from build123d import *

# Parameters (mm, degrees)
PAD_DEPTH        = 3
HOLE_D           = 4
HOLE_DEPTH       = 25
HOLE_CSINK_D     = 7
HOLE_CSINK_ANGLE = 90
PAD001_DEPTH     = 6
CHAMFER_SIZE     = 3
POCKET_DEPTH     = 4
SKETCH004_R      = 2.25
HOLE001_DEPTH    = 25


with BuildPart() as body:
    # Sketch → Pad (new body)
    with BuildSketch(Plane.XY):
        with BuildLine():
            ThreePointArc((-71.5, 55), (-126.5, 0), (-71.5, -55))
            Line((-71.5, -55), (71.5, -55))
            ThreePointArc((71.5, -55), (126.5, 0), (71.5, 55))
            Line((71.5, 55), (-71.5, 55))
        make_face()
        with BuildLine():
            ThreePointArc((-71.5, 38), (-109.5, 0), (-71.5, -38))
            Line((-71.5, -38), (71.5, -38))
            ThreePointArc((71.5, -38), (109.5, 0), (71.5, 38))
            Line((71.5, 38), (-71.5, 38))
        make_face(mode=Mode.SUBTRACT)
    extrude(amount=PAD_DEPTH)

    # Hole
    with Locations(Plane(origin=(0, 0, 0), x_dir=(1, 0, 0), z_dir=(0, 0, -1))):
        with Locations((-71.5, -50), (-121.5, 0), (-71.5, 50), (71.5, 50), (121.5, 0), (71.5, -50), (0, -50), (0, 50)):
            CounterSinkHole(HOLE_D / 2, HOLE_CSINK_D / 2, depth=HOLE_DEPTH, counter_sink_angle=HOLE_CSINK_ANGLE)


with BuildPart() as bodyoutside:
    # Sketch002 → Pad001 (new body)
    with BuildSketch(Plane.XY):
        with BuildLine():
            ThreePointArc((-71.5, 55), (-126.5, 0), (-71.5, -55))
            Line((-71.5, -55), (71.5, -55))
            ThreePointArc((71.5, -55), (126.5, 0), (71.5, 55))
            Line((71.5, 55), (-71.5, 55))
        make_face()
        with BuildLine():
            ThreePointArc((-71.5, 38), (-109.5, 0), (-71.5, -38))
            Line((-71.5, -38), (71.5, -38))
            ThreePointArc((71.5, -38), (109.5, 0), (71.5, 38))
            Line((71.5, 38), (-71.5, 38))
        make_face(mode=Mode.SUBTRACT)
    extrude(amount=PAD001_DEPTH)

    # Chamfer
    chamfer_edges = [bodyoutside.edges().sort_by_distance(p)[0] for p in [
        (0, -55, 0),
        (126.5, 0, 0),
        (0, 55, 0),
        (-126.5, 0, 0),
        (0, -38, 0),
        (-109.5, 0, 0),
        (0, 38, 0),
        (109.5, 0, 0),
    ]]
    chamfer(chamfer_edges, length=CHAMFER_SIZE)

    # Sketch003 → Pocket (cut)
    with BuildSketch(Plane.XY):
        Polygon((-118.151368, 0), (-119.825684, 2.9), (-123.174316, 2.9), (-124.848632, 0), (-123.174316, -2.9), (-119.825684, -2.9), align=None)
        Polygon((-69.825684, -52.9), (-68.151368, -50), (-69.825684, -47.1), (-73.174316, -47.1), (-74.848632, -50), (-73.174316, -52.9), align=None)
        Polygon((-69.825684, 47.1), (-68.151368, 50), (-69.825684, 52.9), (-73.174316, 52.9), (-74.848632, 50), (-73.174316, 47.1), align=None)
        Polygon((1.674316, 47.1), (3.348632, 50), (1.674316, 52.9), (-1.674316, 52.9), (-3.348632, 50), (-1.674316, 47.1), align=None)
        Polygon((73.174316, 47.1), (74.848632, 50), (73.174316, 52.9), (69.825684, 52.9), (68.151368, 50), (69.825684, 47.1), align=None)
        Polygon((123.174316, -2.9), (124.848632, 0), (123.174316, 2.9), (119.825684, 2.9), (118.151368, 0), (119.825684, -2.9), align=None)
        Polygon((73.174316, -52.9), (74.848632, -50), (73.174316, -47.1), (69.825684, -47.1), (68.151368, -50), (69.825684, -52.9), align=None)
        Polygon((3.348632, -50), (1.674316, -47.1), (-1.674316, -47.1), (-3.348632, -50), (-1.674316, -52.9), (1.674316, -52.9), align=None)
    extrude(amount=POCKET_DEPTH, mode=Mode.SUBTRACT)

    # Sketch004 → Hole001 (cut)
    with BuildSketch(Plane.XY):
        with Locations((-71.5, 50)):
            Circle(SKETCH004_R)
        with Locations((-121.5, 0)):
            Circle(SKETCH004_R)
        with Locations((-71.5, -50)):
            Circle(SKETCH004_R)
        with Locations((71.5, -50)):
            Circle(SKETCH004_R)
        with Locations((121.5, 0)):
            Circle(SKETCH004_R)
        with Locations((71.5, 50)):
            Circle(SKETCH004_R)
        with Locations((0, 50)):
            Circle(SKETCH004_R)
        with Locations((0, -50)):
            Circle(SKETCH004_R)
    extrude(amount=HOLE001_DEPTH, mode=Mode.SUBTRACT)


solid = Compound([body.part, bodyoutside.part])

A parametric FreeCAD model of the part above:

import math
import FreeCAD as App
import Part
import Sketcher
Q = App.Units.Quantity


def edges_at(feature, points):
    """Names of the edges that pass closest to the given points."""
    edges = feature.Shape.Edges
    near = lambda p: min(range(len(edges)), key=lambda i: edges[i].distToShape(Part.Vertex(*p))[0])
    return sorted({f"Edge{near(p) + 1}" for p in points})


def add_polygon(sketch, points):
    """Adds a closed chain of lines whose ends are joined by coincident constraints."""
    first, n = sketch.GeometryCount, len(points)
    for a, b in zip(points, points[1:] + points[:1]):
        sketch.addGeometry(Part.LineSegment(App.Vector(*a, 0), App.Vector(*b, 0)), False)
    for i in range(n):
        sketch.addConstraint(Sketcher.Constraint("Coincident", first + i, 2, first + (i + 1) % n, 1))

doc = App.newDocument("Part")
body = doc.addObject("PartDesign::Body", "Body")

# Sketch on XY plane
sketch1 = doc.addObject("Sketcher::SketchObject", "Sketch")
body.addObject(sketch1)
sketch1.AttachmentSupport = (doc.XY_Plane, [""])
sketch1.MapMode = "FlatFace"
sketch1.addGeometry(Part.ArcOfCircle(Part.Circle(App.Vector(-72, 0, 0), App.Vector(0, 0, 1), 55), math.radians(90), math.radians(270)), False)
sketch1.addGeometry(Part.LineSegment(App.Vector(-72, -55, 0), App.Vector(72, -55, 0)), False)
sketch1.addGeometry(Part.ArcOfCircle(Part.Circle(App.Vector(72, 0, 0), App.Vector(0, 0, 1), 55), math.radians(-90), math.radians(90)), False)
sketch1.addGeometry(Part.LineSegment(App.Vector(72, 55, 0), App.Vector(-72, 55, 0)), False)
sketch1.addGeometry(Part.ArcOfCircle(Part.Circle(App.Vector(-72, 0, 0), App.Vector(0, 0, 1), 38), math.radians(90), math.radians(270)), False)
sketch1.addGeometry(Part.LineSegment(App.Vector(-72, 38, 0), App.Vector(72, 38, 0)), False)
sketch1.addGeometry(Part.ArcOfCircle(Part.Circle(App.Vector(72, 0, 0), App.Vector(0, 0, 1), 38), math.radians(-90), math.radians(90)), False)
sketch1.addGeometry(Part.LineSegment(App.Vector(72, -38, 0), App.Vector(-72, -38, 0)), False)
sketch1.addConstraint(Sketcher.Constraint("Tangent", 0, 2, 1, 1))
sketch1.addConstraint(Sketcher.Constraint("Tangent", 1, 2, 2, 1))
sketch1.addConstraint(Sketcher.Constraint("Tangent", 2, 2, 3, 1))
sketch1.addConstraint(Sketcher.Constraint("Tangent", 3, 2, 0, 1))
sketch1.addConstraint(Sketcher.Constraint("Tangent", 4, 1, 5, 1))
sketch1.addConstraint(Sketcher.Constraint("Tangent", 5, 2, 6, 2))
sketch1.addConstraint(Sketcher.Constraint("Tangent", 6, 1, 7, 1))
sketch1.addConstraint(Sketcher.Constraint("Tangent", 7, 2, 4, 2))
sketch1.addConstraint(Sketcher.Constraint("Horizontal", 1))
sketch1.addConstraint(Sketcher.Constraint("Horizontal", 3))
sketch1.addConstraint(Sketcher.Constraint("Horizontal", 5))
sketch1.addConstraint(Sketcher.Constraint("Horizontal", 7))
sketch1.addConstraint(Sketcher.Constraint("Coincident", 4, 3, 0, 3))
sketch1.addConstraint(Sketcher.Constraint("Symmetric", 0, 3, 2, 3, -1, 1))
sketch1.addConstraint(Sketcher.Constraint("Vertical", 6, 3, 1, 2))
sketch1.addConstraint(Sketcher.Constraint("Radius", 0, 55.0))
sketch1.addConstraint(Sketcher.Constraint("Radius", 4, 38.0))
sketch1.addConstraint(Sketcher.Constraint("DistanceX", 1, 1, 1, 2, 143.0))
pad1 = doc.addObject("PartDesign::Pad", "Pad")
body.addObject(pad1)
pad1.Profile = sketch1
pad1.Length = 3

# Sketch on XY plane
sketch2 = doc.addObject("Sketcher::SketchObject", "Sketch001")
body.addObject(sketch2)
sketch2.AttachmentSupport = (doc.XY_Plane, [""])
sketch2.MapMode = "FlatFace"
sketch2.addGeometry(Part.Circle(App.Vector(-71.5, 50, 0), App.Vector(0, 0, 1), 2), False)
sketch2.addGeometry(Part.Circle(App.Vector(-121.5, 0, 0), App.Vector(0, 0, 1), 2), False)
sketch2.addGeometry(Part.Circle(App.Vector(-71.5, -50, 0), App.Vector(0, 0, 1), 2), False)
sketch2.addGeometry(Part.Circle(App.Vector(71.5, -50, 0), App.Vector(0, 0, 1), 2), False)
sketch2.addGeometry(Part.Circle(App.Vector(121.5, 0, 0), App.Vector(0, 0, 1), 2), False)
sketch2.addGeometry(Part.Circle(App.Vector(71.5, 50, 0), App.Vector(0, 0, 1), 2), False)
sketch2.addGeometry(Part.Circle(App.Vector(0, 50, 0), App.Vector(0, 0, 1), 2), False)
sketch2.addGeometry(Part.Circle(App.Vector(0, -50, 0), App.Vector(0, 0, 1), 2), False)
sketch2.addConstraint(Sketcher.Constraint("Equal", 0, 1))
sketch2.addConstraint(Sketcher.Constraint("Equal", 1, 2))
sketch2.addConstraint(Sketcher.Constraint("Equal", 2, 3))
sketch2.addConstraint(Sketcher.Constraint("Equal", 3, 4))
sketch2.addConstraint(Sketcher.Constraint("Equal", 4, 5))
sketch2.addConstraint(Sketcher.Constraint("Equal", 5, 6))
sketch2.addConstraint(Sketcher.Constraint("Equal", 6, 7))
sketch2.addConstraint(Sketcher.Constraint("Symmetric", 0, 3, 3, 3, -1, 1))
sketch2.addConstraint(Sketcher.Constraint("Symmetric", 1, 3, 4, 3, -1, 1))
sketch2.addConstraint(Sketcher.Constraint("Symmetric", 2, 3, 5, 3, -1, 1))
sketch2.addConstraint(Sketcher.Constraint("Symmetric", 6, 3, 7, 3, -1, 1))
sketch2.addConstraint(Sketcher.Constraint("Symmetric", 2, 3, 3, 3, -2))
sketch2.addConstraint(Sketcher.Constraint("PointOnObject", 1, 3, -1))
sketch2.addConstraint(Sketcher.Constraint("PointOnObject", 6, 3, -2))
sketch2.addConstraint(Sketcher.Constraint("Horizontal", 5, 3, 6, 3))
sketch2.addConstraint(Sketcher.Constraint("Diameter", 0, 4.0))
sketch2.addConstraint(Sketcher.Constraint("DistanceY", -1, 1, 0, 3, 50.0))
sketch2.addConstraint(Sketcher.Constraint("DistanceX", 1, 3, 0, 3, 50.0))
sketch2.addConstraint(Sketcher.Constraint("DistanceX", 2, 3, 3, 3, 143.0))
doc.recompute()
hole = doc.addObject("PartDesign::Hole", "Hole")
body.addObject(hole)
hole.Profile = sketch2
hole.ThreadType = "None"
hole.Diameter = 4
hole.DepthType = "Dimension"
hole.Depth = 25
hole.DrillPoint = "Flat"
hole.HoleCutType = "Countersink"
hole.HoleCutDiameter = 7
hole.HoleCutCountersinkAngle = 90
hole.Reversed = True
body2 = doc.addObject("PartDesign::Body", "Body001")

# Sketch on XY plane
sketch3 = doc.addObject("Sketcher::SketchObject", "Sketch002")
body2.addObject(sketch3)
sketch3.AttachmentSupport = (doc.getObject("XY_Plane001"), [""])
sketch3.MapMode = "FlatFace"
sketch3.addGeometry(Part.ArcOfCircle(Part.Circle(App.Vector(-72, 0, 0), App.Vector(0, 0, 1), 55), math.radians(90), math.radians(270)), False)
sketch3.addGeometry(Part.LineSegment(App.Vector(-72, -55, 0), App.Vector(72, -55, 0)), False)
sketch3.addGeometry(Part.ArcOfCircle(Part.Circle(App.Vector(72, 0, 0), App.Vector(0, 0, 1), 55), math.radians(-90), math.radians(90)), False)
sketch3.addGeometry(Part.LineSegment(App.Vector(72, 55, 0), App.Vector(-72, 55, 0)), False)
sketch3.addGeometry(Part.ArcOfCircle(Part.Circle(App.Vector(-72, 0, 0), App.Vector(0, 0, 1), 38), math.radians(90), math.radians(270)), False)
sketch3.addGeometry(Part.LineSegment(App.Vector(-72, 38, 0), App.Vector(72, 38, 0)), False)
sketch3.addGeometry(Part.ArcOfCircle(Part.Circle(App.Vector(72, 0, 0), App.Vector(0, 0, 1), 38), math.radians(-90), math.radians(90)), False)
sketch3.addGeometry(Part.LineSegment(App.Vector(72, -38, 0), App.Vector(-72, -38, 0)), False)
sketch3.addConstraint(Sketcher.Constraint("Tangent", 0, 2, 1, 1))
sketch3.addConstraint(Sketcher.Constraint("Tangent", 1, 2, 2, 1))
sketch3.addConstraint(Sketcher.Constraint("Tangent", 2, 2, 3, 1))
sketch3.addConstraint(Sketcher.Constraint("Tangent", 3, 2, 0, 1))
sketch3.addConstraint(Sketcher.Constraint("Tangent", 4, 1, 5, 1))
sketch3.addConstraint(Sketcher.Constraint("Tangent", 5, 2, 6, 2))
sketch3.addConstraint(Sketcher.Constraint("Tangent", 6, 1, 7, 1))
sketch3.addConstraint(Sketcher.Constraint("Tangent", 7, 2, 4, 2))
sketch3.addConstraint(Sketcher.Constraint("Horizontal", 1))
sketch3.addConstraint(Sketcher.Constraint("Horizontal", 3))
sketch3.addConstraint(Sketcher.Constraint("Horizontal", 5))
sketch3.addConstraint(Sketcher.Constraint("Horizontal", 7))
sketch3.addConstraint(Sketcher.Constraint("Coincident", 4, 3, 0, 3))
sketch3.addConstraint(Sketcher.Constraint("Symmetric", 0, 3, 2, 3, -1, 1))
sketch3.addConstraint(Sketcher.Constraint("Vertical", 6, 3, 1, 2))
sketch3.addConstraint(Sketcher.Constraint("Radius", 0, 55.0))
sketch3.addConstraint(Sketcher.Constraint("Radius", 4, 38.0))
sketch3.addConstraint(Sketcher.Constraint("DistanceX", 1, 1, 1, 2, 143.0))
pad2 = doc.addObject("PartDesign::Pad", "Pad001")
body2.addObject(pad2)
pad2.Profile = sketch3
pad2.Length = 6
doc.recompute()

chamfer = doc.addObject("PartDesign::Chamfer", "Chamfer")
body2.addObject(chamfer)
chamfer.Base = (pad2, edges_at(pad2, [
    (0, -55, 0),
    (126.5, 0, 0),
    (0, 55, 0),
    (-126.5, 0, 0),
    (0, -38, 0),
    (-109.5, 0, 0),
    (0, 38, 0),
    (109.5, 0, 0),
]))
chamfer.Size = 3

# Sketch on XY plane
sketch4 = doc.addObject("Sketcher::SketchObject", "Sketch003")
body2.addObject(sketch4)
sketch4.AttachmentSupport = (doc.getObject("XY_Plane001"), [""])
sketch4.MapMode = "FlatFace"
add_polygon(sketch4, [(-118.2, 0), (-119.8, 2.9), (-123.2, 2.9), (-124.8, 0), (-123.2, -2.9), (-119.8, -2.9)])  # lines 0-5
add_polygon(sketch4, [(-69.8, -52.9), (-68.2, -50), (-69.8, -47.1), (-73.2, -47.1), (-74.8, -50), (-73.2, -52.9)])  # lines 6-11
add_polygon(sketch4, [(-69.8, 47.1), (-68.2, 50), (-69.8, 52.9), (-73.2, 52.9), (-74.8, 50), (-73.2, 47.1)])  # lines 12-17
add_polygon(sketch4, [(1.7, 47.1), (3.3, 50), (1.7, 52.9), (-1.7, 52.9), (-3.3, 50), (-1.7, 47.1)])  # lines 18-23
add_polygon(sketch4, [(73.2, 47.1), (74.8, 50), (73.2, 52.9), (69.8, 52.9), (68.2, 50), (69.8, 47.1)])  # lines 24-29
add_polygon(sketch4, [(123.2, -2.9), (124.8, 0), (123.2, 2.9), (119.8, 2.9), (118.2, 0), (119.8, -2.9)])  # lines 30-35
add_polygon(sketch4, [(73.2, -52.9), (74.8, -50), (73.2, -47.1), (69.8, -47.1), (68.2, -50), (69.8, -52.9)])  # lines 36-41
add_polygon(sketch4, [(3.3, -50), (1.7, -47.1), (-1.7, -47.1), (-3.3, -50), (-1.7, -52.9), (1.7, -52.9)])  # lines 42-47
sketch4.addConstraint(Sketcher.Constraint("Horizontal", 1))
sketch4.addConstraint(Sketcher.Constraint("Horizontal", 4))
sketch4.addConstraint(Sketcher.Constraint("Horizontal", 8))
sketch4.addConstraint(Sketcher.Constraint("Horizontal", 11))
sketch4.addConstraint(Sketcher.Constraint("Horizontal", 14))
sketch4.addConstraint(Sketcher.Constraint("Horizontal", 17))
sketch4.addConstraint(Sketcher.Constraint("Horizontal", 20))
sketch4.addConstraint(Sketcher.Constraint("Horizontal", 23))
sketch4.addConstraint(Sketcher.Constraint("Horizontal", 26))
sketch4.addConstraint(Sketcher.Constraint("Horizontal", 29))
sketch4.addConstraint(Sketcher.Constraint("Horizontal", 32))
sketch4.addConstraint(Sketcher.Constraint("Horizontal", 35))
sketch4.addConstraint(Sketcher.Constraint("Horizontal", 38))
sketch4.addConstraint(Sketcher.Constraint("Horizontal", 41))
sketch4.addConstraint(Sketcher.Constraint("Horizontal", 43))
sketch4.addConstraint(Sketcher.Constraint("Horizontal", 46))
sketch4.addConstraint(Sketcher.Constraint("Symmetric", 9, 2, 24, 2, -1, 1))
sketch4.addConstraint(Sketcher.Constraint("Symmetric", 10, 2, 25, 2, -1, 1))
sketch4.addConstraint(Sketcher.Constraint("Symmetric", 6, 2, 27, 2, -1, 1))
sketch4.addConstraint(Sketcher.Constraint("Symmetric", 7, 2, 28, 2, -1, 1))
sketch4.addConstraint(Sketcher.Constraint("Symmetric", 2, 2, 30, 2, -1, 1))
sketch4.addConstraint(Sketcher.Constraint("Symmetric", 3, 2, 31, 2, -1, 1))
sketch4.addConstraint(Sketcher.Constraint("Symmetric", 5, 2, 33, 2, -1, 1))
sketch4.addConstraint(Sketcher.Constraint("Symmetric", 0, 2, 34, 2, -1, 1))
sketch4.addConstraint(Sketcher.Constraint("Symmetric", 15, 2, 36, 2, -1, 1))
sketch4.addConstraint(Sketcher.Constraint("Symmetric", 16, 2, 37, 2, -1, 1))
sketch4.addConstraint(Sketcher.Constraint("Symmetric", 12, 2, 39, 2, -1, 1))
sketch4.addConstraint(Sketcher.Constraint("Symmetric", 13, 2, 40, 2, -1, 1))
sketch4.addConstraint(Sketcher.Constraint("Symmetric", 22, 2, 42, 2, -1, 1))
sketch4.addConstraint(Sketcher.Constraint("Symmetric", 18, 2, 44, 2, -1, 1))
sketch4.addConstraint(Sketcher.Constraint("Symmetric", 19, 2, 45, 2, -1, 1))
sketch4.addConstraint(Sketcher.Constraint("Symmetric", 21, 2, 47, 2, -1, 1))
sketch4.addConstraint(Sketcher.Constraint("Symmetric", 18, 2, 21, 2, -2))
sketch4.addConstraint(Sketcher.Constraint("Symmetric", 15, 2, 24, 2, -2))
sketch4.addConstraint(Sketcher.Constraint("Symmetric", 14, 2, 25, 2, -2))
sketch4.addConstraint(Sketcher.Constraint("Symmetric", 12, 2, 27, 2, -2))
sketch4.addConstraint(Sketcher.Constraint("Symmetric", 17, 2, 28, 2, -2))
sketch4.addConstraint(Sketcher.Constraint("Symmetric", 1, 2, 31, 2, -2))
sketch4.addConstraint(Sketcher.Constraint("PointOnObject", 2, 2, -1))
sketch4.addConstraint(Sketcher.Constraint("PointOnObject", 5, 2, -1))
sketch4.addConstraint(Sketcher.Constraint("Parallel", 0, 3))
sketch4.addConstraint(Sketcher.Constraint("Parallel", 2, 5))
sketch4.addConstraint(Sketcher.Constraint("Parallel", 5, 6))
sketch4.addConstraint(Sketcher.Constraint("Parallel", 3, 7))
sketch4.addConstraint(Sketcher.Constraint("Parallel", 6, 9))
sketch4.addConstraint(Sketcher.Constraint("Parallel", 7, 10))
sketch4.addConstraint(Sketcher.Constraint("Parallel", 10, 13))
sketch4.addConstraint(Sketcher.Constraint("Parallel", 13, 16))
sketch4.addConstraint(Sketcher.Constraint("Parallel", 15, 18))
sketch4.addConstraint(Sketcher.Constraint("Parallel", 16, 19))
sketch4.addConstraint(Sketcher.Constraint("Parallel", 18, 21))
sketch4.addConstraint(Sketcher.Constraint("Parallel", 19, 22))
sketch4.addConstraint(Sketcher.Constraint("Parallel", 21, 24))
sketch4.addConstraint(Sketcher.Constraint("Parallel", 24, 27))
sketch4.addConstraint(Sketcher.Constraint("Parallel", 27, 30))
sketch4.addConstraint(Sketcher.Constraint("Parallel", 30, 33))
sketch4.addConstraint(Sketcher.Constraint("Parallel", 33, 36))
sketch4.addConstraint(Sketcher.Constraint("Parallel", 36, 39))
sketch4.addConstraint(Sketcher.Constraint("Parallel", 39, 44))
sketch4.addConstraint(Sketcher.Constraint("Parallel", 44, 47))
sketch4.addConstraint(Sketcher.Constraint("Horizontal", 6, 2, 9, 2))
sketch4.addConstraint(Sketcher.Constraint("Horizontal", 15, 2, 18, 2))
sketch4.addConstraint(Sketcher.Constraint("Horizontal", 14, 2, 19, 2))
sketch4.addConstraint(Sketcher.Constraint("Horizontal", 17, 2, 22, 2))
sketch4.addConstraint(Sketcher.Constraint("Vertical", 8, 2, 10, 2))
sketch4.addConstraint(Sketcher.Constraint("Equal", 4, 8))
sketch4.addConstraint(Sketcher.Constraint("Equal", 17, 20))
sketch4.addConstraint(Sketcher.Constraint("Equal", 5, 6))
sketch4.addConstraint(Sketcher.Constraint("Angle", 0, Q("120.000003 deg")))
sketch4.addConstraint(Sketcher.Constraint("DistanceY", 6, 2, -1, 1, 50.0))
sketch4.addConstraint(Sketcher.Constraint("DistanceX", 5, 2, 6, 2, 50.0))
sketch4.addConstraint(Sketcher.Constraint("DistanceY", -1, 1, 0, 2, 2.9))
sketch4.addConstraint(Sketcher.Constraint("DistanceX", 12, 2, 18, 2, 71.5))
sketch4.addConstraint(Sketcher.Constraint("DistanceX", 20, 2, 20, 1, 3.348632))
pocket1 = doc.addObject("PartDesign::Pocket", "Pocket")
body2.addObject(pocket1)
pocket1.Profile = sketch4
pocket1.Length = 4
pocket1.Reversed = True

# Sketch on XY plane
sketch5 = doc.addObject("Sketcher::SketchObject", "Sketch004")
body2.addObject(sketch5)
sketch5.AttachmentSupport = (doc.getObject("XY_Plane001"), [""])
sketch5.MapMode = "FlatFace"
sketch5.addGeometry(Part.Circle(App.Vector(-71.5, 50, 0), App.Vector(0, 0, 1), 2.2), False)
sketch5.addGeometry(Part.Circle(App.Vector(-121.5, 0, 0), App.Vector(0, 0, 1), 2.2), False)
sketch5.addGeometry(Part.Circle(App.Vector(-71.5, -50, 0), App.Vector(0, 0, 1), 2.2), False)
sketch5.addGeometry(Part.Circle(App.Vector(71.5, -50, 0), App.Vector(0, 0, 1), 2.2), False)
sketch5.addGeometry(Part.Circle(App.Vector(121.5, 0, 0), App.Vector(0, 0, 1), 2.2), False)
sketch5.addGeometry(Part.Circle(App.Vector(71.5, 50, 0), App.Vector(0, 0, 1), 2.2), False)
sketch5.addGeometry(Part.Circle(App.Vector(0, 50, 0), App.Vector(0, 0, 1), 2.2), False)
sketch5.addGeometry(Part.Circle(App.Vector(0, -50, 0), App.Vector(0, 0, 1), 2.2), False)
sketch5.addConstraint(Sketcher.Constraint("Equal", 0, 1))
sketch5.addConstraint(Sketcher.Constraint("Equal", 1, 2))
sketch5.addConstraint(Sketcher.Constraint("Equal", 2, 3))
sketch5.addConstraint(Sketcher.Constraint("Equal", 3, 4))
sketch5.addConstraint(Sketcher.Constraint("Equal", 4, 5))
sketch5.addConstraint(Sketcher.Constraint("Equal", 5, 6))
sketch5.addConstraint(Sketcher.Constraint("Equal", 6, 7))
sketch5.addConstraint(Sketcher.Constraint("Symmetric", 0, 3, 3, 3, -1, 1))
sketch5.addConstraint(Sketcher.Constraint("Symmetric", 1, 3, 4, 3, -1, 1))
sketch5.addConstraint(Sketcher.Constraint("Symmetric", 2, 3, 5, 3, -1, 1))
sketch5.addConstraint(Sketcher.Constraint("Symmetric", 6, 3, 7, 3, -1, 1))
sketch5.addConstraint(Sketcher.Constraint("Symmetric", 2, 3, 3, 3, -2))
sketch5.addConstraint(Sketcher.Constraint("PointOnObject", 1, 3, -1))
sketch5.addConstraint(Sketcher.Constraint("PointOnObject", 6, 3, -2))
sketch5.addConstraint(Sketcher.Constraint("Horizontal", 5, 3, 6, 3))
sketch5.addConstraint(Sketcher.Constraint("Diameter", 0, 4.5))
sketch5.addConstraint(Sketcher.Constraint("DistanceY", -1, 1, 0, 3, 50.0))
sketch5.addConstraint(Sketcher.Constraint("DistanceX", 1, 3, 0, 3, 50.0))
sketch5.addConstraint(Sketcher.Constraint("DistanceX", 2, 3, 3, 3, 143.0))
pocket2 = doc.addObject("PartDesign::Pocket", "Pocket001")
body2.addObject(pocket2)
pocket2.Profile = sketch5
pocket2.Length = 25
pocket2.Reversed = True

doc.recompute()
